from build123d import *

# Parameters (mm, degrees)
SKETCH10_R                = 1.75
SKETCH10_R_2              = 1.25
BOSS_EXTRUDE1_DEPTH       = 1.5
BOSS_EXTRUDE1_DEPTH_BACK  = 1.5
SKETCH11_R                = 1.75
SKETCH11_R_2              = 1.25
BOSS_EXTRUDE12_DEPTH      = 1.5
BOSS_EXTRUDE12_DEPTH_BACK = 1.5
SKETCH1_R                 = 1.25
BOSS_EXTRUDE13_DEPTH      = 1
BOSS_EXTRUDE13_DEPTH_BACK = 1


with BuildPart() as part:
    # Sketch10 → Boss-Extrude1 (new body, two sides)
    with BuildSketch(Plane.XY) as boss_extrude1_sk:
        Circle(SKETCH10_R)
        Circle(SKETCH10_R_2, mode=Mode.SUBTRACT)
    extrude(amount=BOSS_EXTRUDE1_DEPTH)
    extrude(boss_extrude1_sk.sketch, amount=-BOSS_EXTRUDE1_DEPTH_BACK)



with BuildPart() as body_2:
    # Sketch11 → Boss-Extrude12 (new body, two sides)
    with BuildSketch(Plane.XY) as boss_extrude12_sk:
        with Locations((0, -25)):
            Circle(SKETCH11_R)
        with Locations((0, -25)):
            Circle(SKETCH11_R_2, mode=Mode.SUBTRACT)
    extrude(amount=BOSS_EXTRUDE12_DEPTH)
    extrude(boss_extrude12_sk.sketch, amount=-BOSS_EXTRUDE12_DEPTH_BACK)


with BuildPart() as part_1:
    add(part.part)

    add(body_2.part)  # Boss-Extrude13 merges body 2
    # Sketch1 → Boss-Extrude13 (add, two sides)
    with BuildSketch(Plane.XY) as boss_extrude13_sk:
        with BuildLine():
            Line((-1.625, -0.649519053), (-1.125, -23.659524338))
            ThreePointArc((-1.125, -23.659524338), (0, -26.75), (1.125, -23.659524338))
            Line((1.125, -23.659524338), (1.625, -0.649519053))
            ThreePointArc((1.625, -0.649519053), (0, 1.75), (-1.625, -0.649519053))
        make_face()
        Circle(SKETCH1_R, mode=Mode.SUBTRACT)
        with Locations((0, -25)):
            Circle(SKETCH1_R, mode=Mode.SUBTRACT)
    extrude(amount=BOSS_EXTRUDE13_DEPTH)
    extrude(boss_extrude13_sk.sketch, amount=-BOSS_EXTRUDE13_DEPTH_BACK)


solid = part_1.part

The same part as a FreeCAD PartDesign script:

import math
import FreeCAD as App
import Part
import Sketcher

V = App.Vector

doc = App.newDocument("Part")
params = doc.addObject("Spreadsheet::Sheet", "Params")
for row, (alias, value) in enumerate([
    ("sketch1_diameter", "3.5 mm"),
    ("sketch1_diameter2", "2.5 mm"),
    ("pad1_length", "1.5 mm"),
    ("pad1_length2", "1.5 mm"),
    ("sketch2_diameter", "3.5 mm"),
    ("sketch2_diameter2", "2.5 mm"),
    ("pad2_length", "1.5 mm"),
    ("pad2_length2", "1.5 mm"),
    ("sketch3_diameter", "2.5 mm"),
    ("sketch3_radius", "1.75 mm"),
    ("pad3_length", "1 mm"),
    ("pad3_length2", "1 mm"),
], start=1):
    params.set(f"A{row}", alias)
    params.set(f"B{row}", "=" + value)
    params.setAlias(f"B{row}", alias)

body = doc.addObject("PartDesign::Body", "Body")

# Sketch on XY plane
sketch1 = body.newObject("Sketcher::SketchObject", "Sketch")
sketch1.AttachmentSupport = (doc.getObject("XY_Plane"), [""])
sketch1.MapMode = "FlatFace"
sketch1.addGeometry(Part.Circle(V(0, 0, 0), V(0, 0, 1), 1.75), False)
sketch1.addGeometry(Part.Circle(V(0, 0, 0), V(0, 0, 1), 1.25), False)
sketch1.addConstraint(Sketcher.Constraint("Coincident", 0, 3, -1, 1))
sketch1.addConstraint(Sketcher.Constraint("Coincident", 1, 3, -1, 1))
sketch1.addConstraint(Sketcher.Constraint("Diameter", 0, 3.5))
sketch1.addConstraint(Sketcher.Constraint("Diameter", 1, 2.5))
sketch1.setExpression("Constraints[2]", "Params.sketch1_diameter")
sketch1.setExpression("Constraints[3]", "Params.sketch1_diameter2")
pad1 = body.newObject("PartDesign::Pad", "Pad")
pad1.Profile = sketch1
pad1.Type = "TwoLengths"
pad1.setExpression("Length", "Params.pad1_length")
pad1.setExpression("Length2", "Params.pad1_length2")
body2 = doc.addObject("PartDesign::Body", "Body001")

# Sketch on XY plane
sketch2 = body2.newObject("Sketcher::SketchObject", "Sketch001")
sketch2.AttachmentSupport = (doc.getObject("XY_Plane001"), [""])
sketch2.MapMode = "FlatFace"
sketch2.addGeometry(Part.Circle(V(0, -25, 0), V(0, 0, 1), 1.75), False)
sketch2.addGeometry(Part.Circle(V(0, -25, 0), V(0, 0, 1), 1.25), False)
sketch2.addConstraint(Sketcher.Constraint("Coincident", 1, 3, 0, 3))
sketch2.addConstraint(Sketcher.Constraint("PointOnObject", 0, 3, -2))
sketch2.addConstraint(Sketcher.Constraint("Diameter", 0, 3.5))
sketch2.addConstraint(Sketcher.Constraint("Diameter", 1, 2.5))
sketch2.addConstraint(Sketcher.Constraint("DistanceY", 0, 3, -1, 1, 25.0))
sketch2.setExpression("Constraints[2]", "Params.sketch2_diameter")
sketch2.setExpression("Constraints[3]", "Params.sketch2_diameter2")
pad2 = body2.newObject("PartDesign::Pad", "Pad001")
pad2.Profile = sketch2
pad2.Type = "TwoLengths"
pad2.setExpression("Length", "Params.pad2_length")
pad2.setExpression("Length2", "Params.pad2_length2")
body.AllowCompound = True
doc.recompute()

boolean = body.newObject("PartDesign::Boolean", "Boolean")
boolean.Type = "Fuse"
boolean.addObjects([body2])

# Sketch on XY plane
sketch3 = body.newObject("Sketcher::SketchObject", "Sketch002")
sketch3.AttachmentSupport = (doc.getObject("XY_Plane"), [""])
sketch3.MapMode = "FlatFace"
sketch3.addGeometry(Part.LineSegment(V(-1.625, -0.649519, 0), V(-1.125, -23.659524, 0)), False)
sketch3.addGeometry(Part.ArcOfCircle(Part.Circle(V(0, -25, 0), V(0, 0, 1), 1.75), math.radians(130.005201), math.radians(409.994799)), False)
sketch3.addGeometry(Part.LineSegment(V(1.125, -23.659524, 0), V(1.625, -0.649519, 0)), False)
sketch3.addGeometry(Part.ArcOfCircle(Part.Circle(V(0, 0, 0), V(0, 0, 1), 1.75), math.radians(-21.786789), math.radians(201.786789)), False)
sketch3.addGeometry(Part.Circle(V(0, -25, 0), V(0, 0, 1), 1.25), False)
sketch3.addGeometry(Part.Circle(V(0, 0, 0), V(0, 0, 1), 1.25), False)
sketch3.addConstraint(Sketcher.Constraint("Coincident", 0, 2, 1, 1))
sketch3.addConstraint(Sketcher.Constraint("Coincident", 1, 2, 2, 1))
sketch3.addConstraint(Sketcher.Constraint("Coincident", 2, 2, 3, 1))
sketch3.addConstraint(Sketcher.Constraint("Coincident", 3, 2, 0, 1))
sketch3.addConstraint(Sketcher.Constraint("Coincident", 3, 3, -1, 1))
sketch3.addConstraint(Sketcher.Constraint("Coincident", 5, 3, -1, 1))
sketch3.addConstraint(Sketcher.Constraint("Coincident", 4, 3, 1, 3))
sketch3.addConstraint(Sketcher.Constraint("Equal", 1, 3))
sketch3.addConstraint(Sketcher.Constraint("Equal", 4, 5))
sketch3.addConstraint(Sketcher.Constraint("Symmetric", 0, 2, 1, 2, -2))
sketch3.addConstraint(Sketcher.Constraint("Horizontal", 2, 2, 3, 2))
sketch3.addConstraint(Sketcher.Constraint("Diameter", 4, 2.5))
sketch3.addConstraint(Sketcher.Constraint("Radius", 1, 1.75))
sketch3.addConstraint(Sketcher.Constraint("DistanceY", 1, 3, -1, 1, 25.0))
sketch3.addConstraint(Sketcher.Constraint("DistanceX", 1, 2, 2, 2, 0.5))
sketch3.addConstraint(Sketcher.Constraint("DistanceX", 0, 2, 1, 2, 2.25))
sketch3.setExpression("Constraints[11]", "Params.sketch3_diameter")
sketch3.setExpression("Constraints[12]", "Params.sketch3_radius")
pad3 = body.newObject("PartDesign::Pad", "Pad002")
pad3.Profile = sketch3
pad3.Type = "TwoLengths"
pad3.setExpression("Length", "Params.pad3_length")
pad3.setExpression("Length2", "Params.pad3_length2")

doc.recompute()
